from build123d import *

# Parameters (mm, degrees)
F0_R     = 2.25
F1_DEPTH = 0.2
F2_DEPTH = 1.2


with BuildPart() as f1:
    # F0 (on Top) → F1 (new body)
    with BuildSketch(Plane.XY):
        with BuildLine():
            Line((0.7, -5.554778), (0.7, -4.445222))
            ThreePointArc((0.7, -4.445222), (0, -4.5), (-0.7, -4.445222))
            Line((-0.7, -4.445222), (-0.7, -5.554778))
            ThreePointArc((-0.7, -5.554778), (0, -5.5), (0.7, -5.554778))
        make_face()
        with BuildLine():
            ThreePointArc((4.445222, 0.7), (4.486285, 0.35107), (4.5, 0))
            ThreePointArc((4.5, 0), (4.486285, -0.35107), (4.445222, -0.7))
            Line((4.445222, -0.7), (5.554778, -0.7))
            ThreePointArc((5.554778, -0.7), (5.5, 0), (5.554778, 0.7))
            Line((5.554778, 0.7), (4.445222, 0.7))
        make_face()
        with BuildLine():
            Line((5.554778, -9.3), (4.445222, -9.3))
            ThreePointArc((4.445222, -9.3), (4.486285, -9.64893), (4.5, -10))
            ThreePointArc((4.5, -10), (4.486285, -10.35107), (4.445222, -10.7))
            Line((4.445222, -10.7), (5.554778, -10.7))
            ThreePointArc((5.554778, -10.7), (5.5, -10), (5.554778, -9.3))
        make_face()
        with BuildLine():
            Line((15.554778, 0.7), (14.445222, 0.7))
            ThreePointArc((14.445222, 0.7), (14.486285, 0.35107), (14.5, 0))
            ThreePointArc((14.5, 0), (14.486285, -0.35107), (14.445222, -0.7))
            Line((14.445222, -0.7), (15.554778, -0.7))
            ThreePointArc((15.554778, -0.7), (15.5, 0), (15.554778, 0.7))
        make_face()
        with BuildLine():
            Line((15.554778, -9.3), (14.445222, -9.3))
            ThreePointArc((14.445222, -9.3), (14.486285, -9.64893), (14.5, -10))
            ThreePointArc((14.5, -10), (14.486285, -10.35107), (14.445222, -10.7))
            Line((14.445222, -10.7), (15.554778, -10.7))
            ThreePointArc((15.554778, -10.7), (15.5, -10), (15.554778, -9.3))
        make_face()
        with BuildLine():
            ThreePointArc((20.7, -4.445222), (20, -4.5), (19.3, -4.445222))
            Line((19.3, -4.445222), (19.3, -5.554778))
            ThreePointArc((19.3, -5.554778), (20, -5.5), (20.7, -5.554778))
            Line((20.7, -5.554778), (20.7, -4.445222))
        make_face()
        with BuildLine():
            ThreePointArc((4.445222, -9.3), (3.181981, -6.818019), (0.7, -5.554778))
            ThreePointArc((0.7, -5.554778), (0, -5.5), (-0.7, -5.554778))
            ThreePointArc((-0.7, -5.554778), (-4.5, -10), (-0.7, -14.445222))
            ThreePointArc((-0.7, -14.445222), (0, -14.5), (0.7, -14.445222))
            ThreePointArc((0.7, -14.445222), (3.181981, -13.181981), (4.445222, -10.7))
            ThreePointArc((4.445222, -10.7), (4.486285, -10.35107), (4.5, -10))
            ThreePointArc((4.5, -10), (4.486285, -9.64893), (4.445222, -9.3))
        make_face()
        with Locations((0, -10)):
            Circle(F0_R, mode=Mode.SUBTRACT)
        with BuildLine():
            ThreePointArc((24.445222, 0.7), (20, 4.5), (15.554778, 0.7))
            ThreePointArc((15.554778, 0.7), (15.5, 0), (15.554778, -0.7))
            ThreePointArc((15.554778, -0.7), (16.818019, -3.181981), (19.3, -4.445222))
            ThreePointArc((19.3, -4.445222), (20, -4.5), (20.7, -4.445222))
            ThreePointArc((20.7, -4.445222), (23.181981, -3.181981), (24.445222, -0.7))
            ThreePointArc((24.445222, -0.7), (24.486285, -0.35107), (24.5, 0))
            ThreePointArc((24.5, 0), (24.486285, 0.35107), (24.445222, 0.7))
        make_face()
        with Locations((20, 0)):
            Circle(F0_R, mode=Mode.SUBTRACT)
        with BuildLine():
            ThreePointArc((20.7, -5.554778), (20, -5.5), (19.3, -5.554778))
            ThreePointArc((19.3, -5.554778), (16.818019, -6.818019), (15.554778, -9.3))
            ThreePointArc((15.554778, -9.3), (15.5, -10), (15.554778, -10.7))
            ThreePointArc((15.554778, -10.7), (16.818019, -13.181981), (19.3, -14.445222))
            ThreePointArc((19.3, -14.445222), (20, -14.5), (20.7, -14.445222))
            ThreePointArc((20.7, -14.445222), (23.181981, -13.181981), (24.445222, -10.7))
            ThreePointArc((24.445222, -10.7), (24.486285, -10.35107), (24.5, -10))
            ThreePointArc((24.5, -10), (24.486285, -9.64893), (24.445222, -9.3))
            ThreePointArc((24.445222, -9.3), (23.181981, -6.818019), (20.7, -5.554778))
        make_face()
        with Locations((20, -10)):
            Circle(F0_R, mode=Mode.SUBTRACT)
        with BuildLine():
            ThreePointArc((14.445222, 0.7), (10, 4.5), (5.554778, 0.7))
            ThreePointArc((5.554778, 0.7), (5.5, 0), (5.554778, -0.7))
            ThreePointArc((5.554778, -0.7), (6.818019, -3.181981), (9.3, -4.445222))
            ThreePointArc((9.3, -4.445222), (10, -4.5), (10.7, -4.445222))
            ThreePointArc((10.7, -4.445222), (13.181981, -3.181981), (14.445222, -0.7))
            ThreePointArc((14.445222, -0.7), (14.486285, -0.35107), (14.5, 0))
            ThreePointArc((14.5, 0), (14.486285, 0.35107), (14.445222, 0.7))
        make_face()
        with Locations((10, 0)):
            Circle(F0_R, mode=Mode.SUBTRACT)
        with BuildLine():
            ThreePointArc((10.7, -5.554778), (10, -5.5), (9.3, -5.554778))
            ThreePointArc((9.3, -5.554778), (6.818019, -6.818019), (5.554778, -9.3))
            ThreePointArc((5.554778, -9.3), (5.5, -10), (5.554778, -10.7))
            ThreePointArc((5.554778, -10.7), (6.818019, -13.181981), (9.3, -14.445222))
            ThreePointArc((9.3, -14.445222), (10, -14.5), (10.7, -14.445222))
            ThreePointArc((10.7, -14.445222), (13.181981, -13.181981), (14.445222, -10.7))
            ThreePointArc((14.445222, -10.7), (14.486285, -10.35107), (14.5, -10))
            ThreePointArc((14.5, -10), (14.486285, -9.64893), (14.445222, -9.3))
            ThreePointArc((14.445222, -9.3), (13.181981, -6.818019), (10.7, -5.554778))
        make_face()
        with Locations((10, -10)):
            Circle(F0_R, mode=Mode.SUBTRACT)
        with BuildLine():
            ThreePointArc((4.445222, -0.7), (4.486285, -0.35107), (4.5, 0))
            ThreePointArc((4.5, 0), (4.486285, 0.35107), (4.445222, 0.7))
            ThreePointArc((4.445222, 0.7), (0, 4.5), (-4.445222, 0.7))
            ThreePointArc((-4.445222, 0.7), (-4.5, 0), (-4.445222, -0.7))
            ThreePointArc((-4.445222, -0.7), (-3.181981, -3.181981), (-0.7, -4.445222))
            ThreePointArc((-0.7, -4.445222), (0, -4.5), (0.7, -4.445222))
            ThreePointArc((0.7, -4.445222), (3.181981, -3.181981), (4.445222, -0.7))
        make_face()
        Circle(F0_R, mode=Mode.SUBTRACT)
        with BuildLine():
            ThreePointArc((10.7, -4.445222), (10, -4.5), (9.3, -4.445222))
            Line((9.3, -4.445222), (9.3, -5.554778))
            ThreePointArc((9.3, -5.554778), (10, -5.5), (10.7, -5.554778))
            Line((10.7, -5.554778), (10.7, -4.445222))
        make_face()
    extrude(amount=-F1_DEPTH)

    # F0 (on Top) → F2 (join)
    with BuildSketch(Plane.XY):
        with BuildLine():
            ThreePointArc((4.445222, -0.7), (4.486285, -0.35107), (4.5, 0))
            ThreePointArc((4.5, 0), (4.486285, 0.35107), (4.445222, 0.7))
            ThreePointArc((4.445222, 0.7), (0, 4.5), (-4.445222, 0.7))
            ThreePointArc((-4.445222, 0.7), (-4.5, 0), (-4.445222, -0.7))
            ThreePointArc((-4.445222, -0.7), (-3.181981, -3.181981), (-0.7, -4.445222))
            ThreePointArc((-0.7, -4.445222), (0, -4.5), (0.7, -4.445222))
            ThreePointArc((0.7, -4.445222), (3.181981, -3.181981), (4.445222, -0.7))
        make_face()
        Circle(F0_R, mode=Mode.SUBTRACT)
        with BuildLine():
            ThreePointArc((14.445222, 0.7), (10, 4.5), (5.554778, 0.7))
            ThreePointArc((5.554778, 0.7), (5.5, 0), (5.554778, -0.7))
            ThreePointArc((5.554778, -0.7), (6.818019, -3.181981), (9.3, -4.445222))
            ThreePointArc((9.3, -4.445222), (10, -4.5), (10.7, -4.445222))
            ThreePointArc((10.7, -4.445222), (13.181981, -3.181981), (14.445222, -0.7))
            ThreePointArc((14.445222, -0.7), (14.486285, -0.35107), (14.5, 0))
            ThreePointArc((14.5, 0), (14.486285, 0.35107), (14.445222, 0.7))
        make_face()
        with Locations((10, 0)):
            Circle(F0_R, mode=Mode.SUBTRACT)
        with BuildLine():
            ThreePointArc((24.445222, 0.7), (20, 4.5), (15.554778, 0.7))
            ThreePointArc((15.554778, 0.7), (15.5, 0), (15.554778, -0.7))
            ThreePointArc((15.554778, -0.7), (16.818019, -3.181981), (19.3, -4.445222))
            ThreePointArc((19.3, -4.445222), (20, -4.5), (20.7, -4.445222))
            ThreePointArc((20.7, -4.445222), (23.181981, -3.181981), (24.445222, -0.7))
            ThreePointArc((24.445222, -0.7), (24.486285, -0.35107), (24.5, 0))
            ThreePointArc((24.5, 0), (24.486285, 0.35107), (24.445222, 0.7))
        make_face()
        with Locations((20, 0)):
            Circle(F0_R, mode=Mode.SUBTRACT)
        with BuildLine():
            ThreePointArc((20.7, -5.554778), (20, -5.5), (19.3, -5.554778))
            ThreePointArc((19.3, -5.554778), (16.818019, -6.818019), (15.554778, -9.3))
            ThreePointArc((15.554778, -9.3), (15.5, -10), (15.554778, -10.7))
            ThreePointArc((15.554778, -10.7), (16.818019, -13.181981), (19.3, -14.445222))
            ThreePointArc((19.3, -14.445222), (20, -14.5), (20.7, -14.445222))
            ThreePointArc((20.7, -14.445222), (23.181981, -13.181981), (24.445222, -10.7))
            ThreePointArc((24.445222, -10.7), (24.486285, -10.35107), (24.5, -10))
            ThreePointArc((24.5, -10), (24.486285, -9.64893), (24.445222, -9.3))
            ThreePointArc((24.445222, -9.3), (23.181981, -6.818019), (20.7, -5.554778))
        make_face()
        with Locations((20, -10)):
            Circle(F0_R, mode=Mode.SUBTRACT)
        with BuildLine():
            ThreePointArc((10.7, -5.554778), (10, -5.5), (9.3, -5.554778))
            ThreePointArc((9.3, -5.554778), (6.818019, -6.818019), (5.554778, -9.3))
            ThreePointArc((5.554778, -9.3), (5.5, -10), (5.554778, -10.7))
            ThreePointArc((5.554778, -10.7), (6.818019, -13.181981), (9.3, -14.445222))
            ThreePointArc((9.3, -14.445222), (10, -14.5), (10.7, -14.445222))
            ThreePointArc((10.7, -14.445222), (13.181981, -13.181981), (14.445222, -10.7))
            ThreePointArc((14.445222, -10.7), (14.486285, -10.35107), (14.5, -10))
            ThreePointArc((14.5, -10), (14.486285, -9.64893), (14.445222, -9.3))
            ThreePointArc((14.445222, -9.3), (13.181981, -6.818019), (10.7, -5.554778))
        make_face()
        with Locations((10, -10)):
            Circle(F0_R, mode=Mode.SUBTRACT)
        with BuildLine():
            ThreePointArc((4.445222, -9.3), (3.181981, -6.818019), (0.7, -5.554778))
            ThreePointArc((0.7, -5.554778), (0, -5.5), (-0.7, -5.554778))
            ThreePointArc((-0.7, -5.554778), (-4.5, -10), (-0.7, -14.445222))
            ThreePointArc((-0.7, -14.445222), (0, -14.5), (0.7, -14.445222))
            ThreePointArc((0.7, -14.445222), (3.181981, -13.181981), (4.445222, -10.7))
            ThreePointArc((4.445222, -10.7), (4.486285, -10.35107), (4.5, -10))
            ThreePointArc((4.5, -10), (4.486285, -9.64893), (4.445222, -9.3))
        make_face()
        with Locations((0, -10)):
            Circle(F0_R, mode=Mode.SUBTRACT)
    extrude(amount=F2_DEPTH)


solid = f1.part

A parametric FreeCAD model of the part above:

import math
import FreeCAD as App
import Part
import Sketcher

V = App.Vector
Q = App.Units.Quantity

doc = App.newDocument("Part")
body = doc.addObject("PartDesign::Body", "Body")

# Sketch on XY plane
sketch1 = doc.addObject("Sketcher::SketchObject", "Sketch")
body.addObject(sketch1)
sketch1.AttachmentSupport = (doc.XY_Plane, [""])
sketch1.MapMode = "FlatFace"
sketch1.addGeometry([
    Part.LineSegment(V(-0.7, -4.445222, 0), V(-0.7, -5.554778, 0)),  # 0
    Part.ArcOfCircle(Part.Circle(V(0, -10, 0), V(0, 0, 1), 4.5), math.radians(98.949016), math.radians(261.050984)),  # 1
    Part.ArcOfCircle(Part.Circle(V(0, -10.000013, 0), V(0, 0, 1), 4.499987), math.radians(-98.949043), math.radians(-81.050957)),  # 2
    Part.ArcOfCircle(Part.Circle(V(0.000003, -10.000003, 0), V(0, 0, 1), 4.499996), math.radians(-81.051014), math.radians(-8.948986)),  # 3
    Part.LineSegment(V(4.445222, -10.7, 0), V(5.554778, -10.7, 0)),  # 4
    Part.ArcOfCircle(Part.Circle(V(9.999997, -10.000003, 0), V(0, 0, 1), 4.499996), math.radians(-171.051014), math.radians(-98.948986)),  # 5
    Part.ArcOfCircle(Part.Circle(V(10, -10.000013, 0), V(0, 0, 1), 4.499987), math.radians(-98.949043), math.radians(-81.050957)),  # 6
    Part.ArcOfCircle(Part.Circle(V(10.000003, -10.000003, 0), V(0, 0, 1), 4.499996), math.radians(-81.051014), math.radians(-8.948986)),  # 7
    Part.LineSegment(V(14.445222, -10.7, 0), V(15.554778, -10.7, 0)),  # 8
    Part.ArcOfCircle(Part.Circle(V(19.999997, -10.000003, 0), V(0, 0, 1), 4.499996), math.radians(-171.051014), math.radians(-98.948986)),  # 9
    Part.ArcOfCircle(Part.Circle(V(20, -10.000013, 0), V(0, 0, 1), 4.499987), math.radians(-98.949043), math.radians(-81.050957)),  # 10
    Part.ArcOfCircle(Part.Circle(V(20.000003, -10.000003, 0), V(0, 0, 1), 4.499996), math.radians(-81.051014), math.radians(-8.948986)),  # 11
    Part.ArcOfCircle(Part.Circle(V(20.000143, -10.00001, 0), V(0, 0, 1), 4.499857), math.radians(-8.949173), math.radians(0.00013)),  # 12
    Part.ArcOfCircle(Part.Circle(V(20.000143, -9.99999, 0), V(0, 0, 1), 4.499857), math.radians(-0.00013), math.radians(8.949173)),  # 13
    Part.ArcOfCircle(Part.Circle(V(20.000003, -9.999997, 0), V(0, 0, 1), 4.499996), math.radians(8.948986), math.radians(81.051014)),  # 14
    Part.LineSegment(V(20.7, -5.554778, 0), V(20.7, -4.445222, 0)),  # 15
    Part.ArcOfCircle(Part.Circle(V(20.000003, -0.000003, 0), V(0, 0, 1), 4.499996), math.radians(-81.051014), math.radians(-8.948986)),  # 16
    Part.ArcOfCircle(Part.Circle(V(20.000143, -0.00001, 0), V(0, 0, 1), 4.499857), math.radians(-8.949173), math.radians(0.00013)),  # 17
    Part.ArcOfCircle(Part.Circle(V(20.000143, 0.00001, 0), V(0, 0, 1), 4.499857), math.radians(-0.00013), math.radians(8.949173)),  # 18
    Part.ArcOfCircle(Part.Circle(V(20, 0, 0), V(0, 0, 1), 4.5), math.radians(8.949016), math.radians(171.050984)),  # 19
    Part.LineSegment(V(15.554778, 0.7, 0), V(14.445222, 0.7, 0)),  # 20
    Part.ArcOfCircle(Part.Circle(V(10, 0, 0), V(0, 0, 1), 4.5), math.radians(8.949016), math.radians(171.050984)),  # 21
    Part.LineSegment(V(5.554778, 0.7, 0), V(4.445222, 0.7, 0)),  # 22
    Part.ArcOfCircle(Part.Circle(V(0, 0, 0), V(0, 0, 1), 4.5), math.radians(8.949016), math.radians(171.050984)),  # 23
    Part.ArcOfCircle(Part.Circle(V(-0.000013, 0, 0), V(0, 0, 1), 4.499987), math.radians(171.050957), math.radians(188.949043)),  # 24
    Part.ArcOfCircle(Part.Circle(V(-0.000003, -0.000003, 0), V(0, 0, 1), 4.499996), math.radians(-171.051014), math.radians(-98.948986)),  # 25
    Part.Circle(V(0, -10, 0), V(0, 0, 1), 2.25),  # 26
    Part.Circle(V(10, -10, 0), V(0, 0, 1), 2.25),  # 27
    Part.Circle(V(20, -10, 0), V(0, 0, 1), 2.25),  # 28
    Part.LineSegment(V(0.7, -5.554778, 0), V(0.7, -4.445222, 0)),  # 29
    Part.ArcOfCircle(Part.Circle(V(0.000003, -0.000003, 0), V(0, 0, 1), 4.499996), math.radians(-81.051014), math.radians(-8.948986)),  # 30
    Part.LineSegment(V(4.445222, -0.7, 0), V(5.554778, -0.7, 0)),  # 31
    Part.ArcOfCircle(Part.Circle(V(9.999997, -0.000003, 0), V(0, 0, 1), 4.499996), math.radians(-171.051014), math.radians(-98.948986)),  # 32
    Part.LineSegment(V(9.3, -4.445222, 0), V(9.3, -5.554778, 0)),  # 33
    Part.ArcOfCircle(Part.Circle(V(9.999997, -9.999997, 0), V(0, 0, 1), 4.499996), math.radians(98.948986), math.radians(171.051014)),  # 34
    Part.LineSegment(V(5.554778, -9.3, 0), V(4.445222, -9.3, 0)),  # 35
    Part.ArcOfCircle(Part.Circle(V(0.000003, -9.999997, 0), V(0, 0, 1), 4.499996), math.radians(8.948986), math.radians(81.051014)),  # 36
    Part.ArcOfCircle(Part.Circle(V(10.000003, -9.999997, 0), V(0, 0, 1), 4.499996), math.radians(8.948986), math.radians(81.051014)),  # 37
    Part.LineSegment(V(10.7, -5.554778, 0), V(10.7, -4.445222, 0)),  # 38
    Part.ArcOfCircle(Part.Circle(V(10.000003, -0.000003, 0), V(0, 0, 1), 4.499996), math.radians(-81.051014), math.radians(-8.948986)),  # 39
    Part.LineSegment(V(14.445222, -0.7, 0), V(15.554778, -0.7, 0)),  # 40
    Part.ArcOfCircle(Part.Circle(V(19.999997, -0.000003, 0), V(0, 0, 1), 4.499996), math.radians(-171.051014), math.radians(-98.948986)),  # 41
    Part.LineSegment(V(19.3, -4.445222, 0), V(19.3, -5.554778, 0)),  # 42
    Part.ArcOfCircle(Part.Circle(V(19.999997, -9.999997, 0), V(0, 0, 1), 4.499996), math.radians(98.948986), math.radians(171.051014)),  # 43
    Part.LineSegment(V(15.554778, -9.3, 0), V(14.445222, -9.3, 0)),  # 44
    Part.Circle(V(0, 0, 0), V(0, 0, 1), 2.25),  # 45
    Part.Circle(V(10, 0, 0), V(0, 0, 1), 2.25),  # 46
    Part.Circle(V(20, 0, 0), V(0, 0, 1), 2.25),  # 47
], False)
sketch1.addConstraint([
    Sketcher.Constraint("Coincident", 0, 2, 1, 1),
    Sketcher.Constraint("Tangent", 1, 2, 2, 1),
    Sketcher.Constraint("Tangent", 2, 2, 3, 1),
    Sketcher.Constraint("Coincident", 3, 2, 4, 1),
    Sketcher.Constraint("Coincident", 4, 2, 5, 1),
    Sketcher.Constraint("Tangent", 5, 2, 6, 1),
    Sketcher.Constraint("Tangent", 6, 2, 7, 1),
    Sketcher.Constraint("Coincident", 7, 2, 8, 1),
    Sketcher.Constraint("Coincident", 8, 2, 9, 1),
    Sketcher.Constraint("Tangent", 9, 2, 10, 1),
    Sketcher.Constraint("Tangent", 10, 2, 11, 1),
    Sketcher.Constraint("Coincident", 11, 2, 12, 1),
    Sketcher.Constraint("Coincident", 12, 2, 13, 1),
    Sketcher.Constraint("Coincident", 13, 2, 14, 1),
    Sketcher.Constraint("Coincident", 14, 2, 15, 1),
    Sketcher.Constraint("Coincident", 15, 2, 16, 1),
    Sketcher.Constraint("Coincident", 16, 2, 17, 1),
    Sketcher.Constraint("Coincident", 17, 2, 18, 1),
    Sketcher.Constraint("Coincident", 18, 2, 19, 1),
    Sketcher.Constraint("Coincident", 19, 2, 20, 1),
    Sketcher.Constraint("Coincident", 20, 2, 21, 1),
    Sketcher.Constraint("Coincident", 21, 2, 22, 1),
    Sketcher.Constraint("Coincident", 22, 2, 23, 1),
    Sketcher.Constraint("Tangent", 23, 2, 24, 1),
    Sketcher.Constraint("Tangent", 24, 2, 25, 1),
    Sketcher.Constraint("Coincident", 25, 2, 0, 1),
    Sketcher.Constraint("Coincident", 29, 2, 30, 1),
    Sketcher.Constraint("Coincident", 30, 2, 31, 1),
    Sketcher.Constraint("Coincident", 31, 2, 32, 1),
    Sketcher.Constraint("Coincident", 32, 2, 33, 1),
    Sketcher.Constraint("Coincident", 33, 2, 34, 1),
    Sketcher.Constraint("Coincident", 34, 2, 35, 1),
    Sketcher.Constraint("Coincident", 35, 2, 36, 1),
    Sketcher.Constraint("Coincident", 36, 2, 29, 1),
    Sketcher.Constraint("Coincident", 37, 2, 38, 1),
    Sketcher.Constraint("Coincident", 38, 2, 39, 1),
    Sketcher.Constraint("Coincident", 39, 2, 40, 1),
    Sketcher.Constraint("Coincident", 40, 2, 41, 1),
    Sketcher.Constraint("Coincident", 41, 2, 42, 1),
    Sketcher.Constraint("Coincident", 42, 2, 43, 1),
    Sketcher.Constraint("Coincident", 43, 2, 44, 1),
    Sketcher.Constraint("Coincident", 44, 2, 37, 1),
    Sketcher.Constraint("Vertical", 0),
    Sketcher.Constraint("Horizontal", 4),
    Sketcher.Constraint("Horizontal", 8),
    Sketcher.Constraint("Vertical", 15),
    Sketcher.Constraint("Horizontal", 20),
    Sketcher.Constraint("Horizontal", 22),
    Sketcher.Constraint("Vertical", 29),
    Sketcher.Constraint("Horizontal", 31),
    Sketcher.Constraint("Vertical", 33),
    Sketcher.Constraint("Horizontal", 35),
    Sketcher.Constraint("Vertical", 38),
    Sketcher.Constraint("Horizontal", 40),
    Sketcher.Constraint("Vertical", 42),
    Sketcher.Constraint("Horizontal", 44),
    Sketcher.Constraint("Coincident", 23, 3, -1, 1),
    Sketcher.Constraint("Coincident", 25, 3, -1, 1),
    Sketcher.Constraint("Coincident", 30, 3, -1, 1),
    Sketcher.Constraint("Coincident", 45, 3, -1, 1),
    Sketcher.Constraint("Coincident", 3, 3, 1, 3),
    Sketcher.Constraint("Coincident", 7, 3, 5, 3),
    Sketcher.Constraint("Coincident", 11, 3, 9, 3),
    Sketcher.Constraint("Coincident", 14, 3, 9, 3),
    Sketcher.Constraint("Coincident", 19, 3, 16, 3),
    Sketcher.Constraint("Coincident", 26, 3, 1, 3),
    Sketcher.Constraint("Coincident", 27, 3, 5, 3),
    Sketcher.Constraint("Coincident", 28, 3, 9, 3),
    Sketcher.Constraint("Coincident", 32, 3, 21, 3),
    Sketcher.Constraint("Coincident", 34, 3, 5, 3),
    Sketcher.Constraint("Coincident", 36, 3, 1, 3),
    Sketcher.Constraint("Coincident", 37, 3, 5, 3),
    Sketcher.Constraint("Coincident", 39, 3, 21, 3),
    Sketcher.Constraint("Coincident", 41, 3, 16, 3),
    Sketcher.Constraint("Coincident", 43, 3, 9, 3),
    Sketcher.Constraint("Coincident", 46, 3, 21, 3),
    Sketcher.Constraint("Coincident", 47, 3, 16, 3),
    Sketcher.Constraint("Equal", 3, 5),
    Sketcher.Constraint("Equal", 7, 9),
    Sketcher.Constraint("Equal", 12, 13),
    Sketcher.Constraint("Equal", 11, 14),
    Sketcher.Constraint("Equal", 14, 16),
    Sketcher.Constraint("Equal", 13, 17),
    Sketcher.Constraint("Equal", 17, 18),
    Sketcher.Constraint("Equal", 1, 19),
    Sketcher.Constraint("Equal", 19, 21),
    Sketcher.Constraint("Equal", 21, 23),
    Sketcher.Constraint("Equal", 26, 27),
    Sketcher.Constraint("Equal", 27, 28),
    Sketcher.Constraint("Equal", 25, 30),
    Sketcher.Constraint("Equal", 30, 32),
    Sketcher.Constraint("Equal", 32, 34),
    Sketcher.Constraint("Equal", 34, 36),
    Sketcher.Constraint("Equal", 36, 37),
    Sketcher.Constraint("Equal", 37, 39),
    Sketcher.Constraint("Equal", 39, 41),
    Sketcher.Constraint("Equal", 41, 43),
    Sketcher.Constraint("Equal", 28, 45),
    Sketcher.Constraint("Equal", 45, 46),
    Sketcher.Constraint("Equal", 46, 47),
    Sketcher.Constraint("Symmetric", 1, 2, 2, 2, -2),
    Sketcher.Constraint("Symmetric", 16, 2, 18, 2, -1),
    Sketcher.Constraint("Symmetric", 21, 2, 31, 2, -1),
    Sketcher.Constraint("PointOnObject", 17, 2, -1),
    Sketcher.Constraint("Horizontal", 3, 3, 5, 3),
    Sketcher.Constraint("Horizontal", 7, 3, 9, 3),
    Sketcher.Constraint("Horizontal", 2, 2, 5, 2),
    Sketcher.Constraint("Horizontal", 5, 2, 6, 2),
    Sketcher.Constraint("Horizontal", 4, 2, 7, 2),
    Sketcher.Constraint("Horizontal", 6, 2, 9, 2),
    Sketcher.Constraint("Horizontal", 9, 2, 10, 2),
    Sketcher.Constraint("Horizontal", 8, 2, 11, 2),
    Sketcher.Constraint("Horizontal", 28, 3, 12, 2),
    Sketcher.Constraint("Horizontal", 0, 2, 14, 2),
    Sketcher.Constraint("Horizontal", 18, 2, 19, 2),
    Sketcher.Constraint("Horizontal", 20, 2, 21, 2),
    Sketcher.Constraint("Horizontal", 22, 2, 23, 2),
    Sketcher.Constraint("Horizontal", 16, 2, 24, 2),
    Sketcher.Constraint("Horizontal", 15, 2, 25, 2),
    Sketcher.Constraint("Horizontal", 25, 2, 29, 2),
    Sketcher.Constraint("Horizontal", 29, 2, 32, 2),
    Sketcher.Constraint("Horizontal", 14, 2, 33, 2),
    Sketcher.Constraint("Horizontal", 13, 2, 34, 2),
    Sketcher.Constraint("Horizontal", 36, 2, 37, 2),
    Sketcher.Constraint("Horizontal", 31, 2, 39, 2),
    Sketcher.Constraint("Horizontal", 38, 2, 41, 2),
    Sketcher.Constraint("Horizontal", 35, 2, 43, 2),
    Sketcher.Constraint("Vertical", 13, 3, 17, 3),
    Sketcher.Constraint("Vertical", 0, 2, 1, 2),
    Sketcher.Constraint("Vertical", 11, 2, 13, 2),
    Sketcher.Constraint("Vertical", 13, 2, 16, 2),
    Sketcher.Constraint("Equal", 4, 8),
    Sketcher.Constraint("Equal", 44, 0),
    Sketcher.Constraint("Diameter", 26, Q("4.5 mm")),
    Sketcher.Constraint("Radius", 1, Q("4.5 mm")),
    Sketcher.Constraint("DistanceY", 1, 3, -1, 1, Q("10 mm")),
    Sketcher.Constraint("DistanceX", -1, 1, 6, 3, Q("10 mm")),
    Sketcher.Constraint("DistanceX", 0, 2, -1, 1, Q("0.7 mm")),
    Sketcher.Constraint("DistanceX", -1, 1, 12, 2, Q("24.5 mm")),
    Sketcher.Constraint("Radius", 12, Q("4.499857 mm")),
])
pad1 = doc.addObject("PartDesign::Pad", "Pad")
body.addObject(pad1)
pad1.Profile = sketch1
pad1.Length = 0.2
pad1.Reversed = True

# Sketch on XY plane
sketch2 = doc.addObject("Sketcher::SketchObject", "Sketch001")
body.addObject(sketch2)
sketch2.AttachmentSupport = (doc.XY_Plane, [""])
sketch2.MapMode = "FlatFace"
sketch2.addGeometry([
    Part.ArcOfCircle(Part.Circle(V(0.000143, -0.00001, 0), V(0, 0, 1), 4.499857), math.radians(-8.949173), math.radians(0.00013)),  # 0
    Part.ArcOfCircle(Part.Circle(V(0.000143, 0.00001, 0), V(0, 0, 1), 4.499857), math.radians(-0.00013), math.radians(8.949173)),  # 1
    Part.ArcOfCircle(Part.Circle(V(0, 0, 0), V(0, 0, 1), 4.5), math.radians(8.949016), math.radians(171.050984)),  # 2
    Part.ArcOfCircle(Part.Circle(V(-0.000013, 0, 0), V(0, 0, 1), 4.499987), math.radians(171.050957), math.radians(188.949043)),  # 3
    Part.ArcOfCircle(Part.Circle(V(-0.000003, -0.000003, 0), V(0, 0, 1), 4.499996), math.radians(-171.051014), math.radians(-98.948986)),  # 4
    Part.ArcOfCircle(Part.Circle(V(0, -0.000013, 0), V(0, 0, 1), 4.499987), math.radians(-98.949043), math.radians(-81.050957)),  # 5
    Part.ArcOfCircle(Part.Circle(V(0.000003, -0.000003, 0), V(0, 0, 1), 4.499996), math.radians(-81.051014), math.radians(-8.948986)),  # 6
    Part.Circle(V(0, 0, 0), V(0, 0, 1), 2.25),  # 7
    Part.ArcOfCircle(Part.Circle(V(10, 0, 0), V(0, 0, 1), 4.5), math.radians(8.949016), math.radians(171.050984)),  # 8
    Part.ArcOfCircle(Part.Circle(V(9.999987, 0, 0), V(0, 0, 1), 4.499987), math.radians(171.050957), math.radians(188.949043)),  # 9
    Part.ArcOfCircle(Part.Circle(V(9.999997, -0.000003, 0), V(0, 0, 1), 4.499996), math.radians(-171.051014), math.radians(-98.948986)),  # 10
    Part.ArcOfCircle(Part.Circle(V(10, -0.000013, 0), V(0, 0, 1), 4.499987), math.radians(-98.949043), math.radians(-81.050957)),  # 11
    Part.ArcOfCircle(Part.Circle(V(10.000003, -0.000003, 0), V(0, 0, 1), 4.499996), math.radians(-81.051014), math.radians(-8.948986)),  # 12
    Part.ArcOfCircle(Part.Circle(V(10.000143, -0.00001, 0), V(0, 0, 1), 4.499857), math.radians(-8.949173), math.radians(0.00013)),  # 13
    Part.ArcOfCircle(Part.Circle(V(10.000143, 0.00001, 0), V(0, 0, 1), 4.499857), math.radians(-0.00013), math.radians(8.949173)),  # 14
    Part.Circle(V(10, 0, 0), V(0, 0, 1), 2.25),  # 15
    Part.ArcOfCircle(Part.Circle(V(20, 0, 0), V(0, 0, 1), 4.5), math.radians(8.949016), math.radians(171.050984)),  # 16
    Part.ArcOfCircle(Part.Circle(V(19.999987, 0, 0), V(0, 0, 1), 4.499987), math.radians(171.050957), math.radians(188.949043)),  # 17
    Part.ArcOfCircle(Part.Circle(V(19.999997, -0.000003, 0), V(0, 0, 1), 4.499996), math.radians(-171.051014), math.radians(-98.948986)),  # 18
    Part.ArcOfCircle(Part.Circle(V(20, -0.000013, 0), V(0, 0, 1), 4.499987), math.radians(-98.949043), math.radians(-81.050957)),  # 19
    Part.ArcOfCircle(Part.Circle(V(20.000003, -0.000003, 0), V(0, 0, 1), 4.499996), math.radians(-81.051014), math.radians(-8.948986)),  # 20
    Part.ArcOfCircle(Part.Circle(V(20.000143, -0.00001, 0), V(0, 0, 1), 4.499857), math.radians(-8.949173), math.radians(0.00013)),  # 21
    Part.ArcOfCircle(Part.Circle(V(20.000143, 0.00001, 0), V(0, 0, 1), 4.499857), math.radians(-0.00013), math.radians(8.949173)),  # 22
    Part.Circle(V(20, 0, 0), V(0, 0, 1), 2.25),  # 23
    Part.ArcOfCircle(Part.Circle(V(20, -9.999987, 0), V(0, 0, 1), 4.499987), math.radians(81.050957), math.radians(98.949043)),  # 24
    Part.ArcOfCircle(Part.Circle(V(19.999997, -9.999997, 0), V(0, 0, 1), 4.499996), math.radians(98.948986), math.radians(171.051014)),  # 25
    Part.ArcOfCircle(Part.Circle(V(19.999987, -10, 0), V(0, 0, 1), 4.499987), math.radians(171.050957), math.radians(188.949043)),  # 26
    Part.ArcOfCircle(Part.Circle(V(19.999997, -10.000003, 0), V(0, 0, 1), 4.499996), math.radians(-171.051014), math.radians(-98.948986)),  # 27
    Part.ArcOfCircle(Part.Circle(V(20, -10.000013, 0), V(0, 0, 1), 4.499987), math.radians(-98.949043), math.radians(-81.050957)),  # 28
    Part.ArcOfCircle(Part.Circle(V(20.000003, -10.000003, 0), V(0, 0, 1), 4.499996), math.radians(-81.051014), math.radians(-8.948986)),  # 29
    Part.ArcOfCircle(Part.Circle(V(20.000143, -10.00001, 0), V(0, 0, 1), 4.499857), math.radians(-8.949173), math.radians(0.00013)),  # 30
    Part.ArcOfCircle(Part.Circle(V(20.000143, -9.99999, 0), V(0, 0, 1), 4.499857), math.radians(-0.00013), math.radians(8.949173)),  # 31
    Part.ArcOfCircle(Part.Circle(V(20.000003, -9.999997, 0), V(0, 0, 1), 4.499996), math.radians(8.948986), math.radians(81.051014)),  # 32
    Part.Circle(V(20, -10, 0), V(0, 0, 1), 2.25),  # 33
    Part.ArcOfCircle(Part.Circle(V(10, -9.999987, 0), V(0, 0, 1), 4.499987), math.radians(81.050957), math.radians(98.949043)),  # 34
    Part.ArcOfCircle(Part.Circle(V(9.999997, -9.999997, 0), V(0, 0, 1), 4.499996), math.radians(98.948986), math.radians(171.051014)),  # 35
    Part.ArcOfCircle(Part.Circle(V(9.999987, -10, 0), V(0, 0, 1), 4.499987), math.radians(171.050957), math.radians(188.949043)),  # 36
    Part.ArcOfCircle(Part.Circle(V(9.999997, -10.000003, 0), V(0, 0, 1), 4.499996), math.radians(-171.051014), math.radians(-98.948986)),  # 37
    Part.ArcOfCircle(Part.Circle(V(10, -10.000013, 0), V(0, 0, 1), 4.499987), math.radians(-98.949043), math.radians(-81.050957)),  # 38
    Part.ArcOfCircle(Part.Circle(V(10.000003, -10.000003, 0), V(0, 0, 1), 4.499996), math.radians(-81.051014), math.radians(-8.948986)),  # 39
    Part.ArcOfCircle(Part.Circle(V(10.000143, -10.00001, 0), V(0, 0, 1), 4.499857), math.radians(-8.949173), math.radians(0.00013)),  # 40
    Part.ArcOfCircle(Part.Circle(V(10.000143, -9.99999, 0), V(0, 0, 1), 4.499857), math.radians(-0.00013), math.radians(8.949173)),  # 41
    Part.ArcOfCircle(Part.Circle(V(10.000003, -9.999997, 0), V(0, 0, 1), 4.499996), math.radians(8.948986), math.radians(81.051014)),  # 42
    Part.Circle(V(10, -10, 0), V(0, 0, 1), 2.25),  # 43
    Part.ArcOfCircle(Part.Circle(V(0.000003, -9.999997, 0), V(0, 0, 1), 4.499996), math.radians(8.948986), math.radians(81.051014)),  # 44
    Part.ArcOfCircle(Part.Circle(V(0, -9.999987, 0), V(0, 0, 1), 4.499987), math.radians(81.050957), math.radians(98.949043)),  # 45
    Part.ArcOfCircle(Part.Circle(V(0, -10, 0), V(0, 0, 1), 4.5), math.radians(98.949016), math.radians(261.050984)),  # 46
    Part.ArcOfCircle(Part.Circle(V(0, -10.000013, 0), V(0, 0, 1), 4.499987), math.radians(-98.949043), math.radians(-81.050957)),  # 47
    Part.ArcOfCircle(Part.Circle(V(0.000003, -10.000003, 0), V(0, 0, 1), 4.499996), math.radians(-81.051014), math.radians(-8.948986)),  # 48
    Part.ArcOfCircle(Part.Circle(V(0.000143, -10.00001, 0), V(0, 0, 1), 4.499857), math.radians(-8.949173), math.radians(0.00013)),  # 49
    Part.ArcOfCircle(Part.Circle(V(0.000143, -9.99999, 0), V(0, 0, 1), 4.499857), math.radians(-0.00013), math.radians(8.949173)),  # 50
    Part.Circle(V(0, -10, 0), V(0, 0, 1), 2.25),  # 51
], False)
sketch2.addConstraint([
    Sketcher.Constraint("Coincident", 0, 2, 1, 1),
    Sketcher.Constraint("Coincident", 1, 2, 2, 1),
    Sketcher.Constraint("Tangent", 2, 2, 3, 1),
    Sketcher.Constraint("Tangent", 3, 2, 4, 1),
    Sketcher.Constraint("Tangent", 4, 2, 5, 1),
    Sketcher.Constraint("Tangent", 5, 2, 6, 1),
    Sketcher.Constraint("Coincident", 6, 2, 0, 1),
    Sketcher.Constraint("Tangent", 8, 2, 9, 1),
    Sketcher.Constraint("Tangent", 9, 2, 10, 1),
    Sketcher.Constraint("Tangent", 10, 2, 11, 1),
    Sketcher.Constraint("Tangent", 11, 2, 12, 1),
    Sketcher.Constraint("Coincident", 12, 2, 13, 1),
    Sketcher.Constraint("Coincident", 13, 2, 14, 1),
    Sketcher.Constraint("Coincident", 14, 2, 8, 1),
    Sketcher.Constraint("Tangent", 16, 2, 17, 1),
    Sketcher.Constraint("Tangent", 17, 2, 18, 1),
    Sketcher.Constraint("Tangent", 18, 2, 19, 1),
    Sketcher.Constraint("Tangent", 19, 2, 20, 1),
    Sketcher.Constraint("Coincident", 20, 2, 21, 1),
    Sketcher.Constraint("Coincident", 21, 2, 22, 1),
    Sketcher.Constraint("Coincident", 22, 2, 16, 1),
    Sketcher.Constraint("Tangent", 24, 2, 25, 1),
    Sketcher.Constraint("Tangent", 25, 2, 26, 1),
    Sketcher.Constraint("Tangent", 26, 2, 27, 1),
    Sketcher.Constraint("Tangent", 27, 2, 28, 1),
    Sketcher.Constraint("Tangent", 28, 2, 29, 1),
    Sketcher.Constraint("Coincident", 29, 2, 30, 1),
    Sketcher.Constraint("Coincident", 30, 2, 31, 1),
    Sketcher.Constraint("Coincident", 31, 2, 32, 1),
    Sketcher.Constraint("Tangent", 32, 2, 24, 1),
    Sketcher.Constraint("Tangent", 34, 2, 35, 1),
    Sketcher.Constraint("Tangent", 35, 2, 36, 1),
    Sketcher.Constraint("Tangent", 36, 2, 37, 1),
    Sketcher.Constraint("Tangent", 37, 2, 38, 1),
    Sketcher.Constraint("Tangent", 38, 2, 39, 1),
    Sketcher.Constraint("Coincident", 39, 2, 40, 1),
    Sketcher.Constraint("Coincident", 40, 2, 41, 1),
    Sketcher.Constraint("Coincident", 41, 2, 42, 1),
    Sketcher.Constraint("Tangent", 42, 2, 34, 1),
    Sketcher.Constraint("Tangent", 44, 2, 45, 1),
    Sketcher.Constraint("Tangent", 45, 2, 46, 1),
    Sketcher.Constraint("Tangent", 46, 2, 47, 1),
    Sketcher.Constraint("Tangent", 47, 2, 48, 1),
    Sketcher.Constraint("Coincident", 48, 2, 49, 1),
    Sketcher.Constraint("Coincident", 49, 2, 50, 1),
    Sketcher.Constraint("Coincident", 50, 2, 44, 1),
    Sketcher.Constraint("Coincident", 2, 3, -1, 1),
    Sketcher.Constraint("Coincident", 4, 3, -1, 1),
    Sketcher.Constraint("Coincident", 6, 3, -1, 1),
    Sketcher.Constraint("Coincident", 7, 3, -1, 1),
    Sketcher.Constraint("Coincident", 10, 3, 8, 3),
    Sketcher.Constraint("Coincident", 12, 3, 8, 3),
    Sketcher.Constraint("Coincident", 15, 3, 8, 3),
    Sketcher.Constraint("Coincident", 18, 3, 16, 3),
    Sketcher.Constraint("Coincident", 20, 3, 16, 3),
    Sketcher.Constraint("Coincident", 23, 3, 16, 3),
    Sketcher.Constraint("Coincident", 27, 3, 25, 3),
    Sketcher.Constraint("Coincident", 29, 3, 25, 3),
    Sketcher.Constraint("Coincident", 33, 3, 25, 3),
    Sketcher.Constraint("Coincident", 37, 3, 35, 3),
    Sketcher.Constraint("Coincident", 39, 3, 35, 3),
    Sketcher.Constraint("Coincident", 43, 3, 35, 3),
    Sketcher.Constraint("Coincident", 46, 3, 44, 3),
    Sketcher.Constraint("Coincident", 48, 3, 44, 3),
    Sketcher.Constraint("Coincident", 51, 3, 44, 3),
    Sketcher.Constraint("Equal", 0, 1),
    Sketcher.Constraint("Equal", 2, 8),
    Sketcher.Constraint("Equal", 1, 13),
    Sketcher.Constraint("Equal", 13, 14),
    Sketcher.Constraint("Equal", 7, 15),
    Sketcher.Constraint("Equal", 8, 16),
    Sketcher.Constraint("Equal", 14, 21),
    Sketcher.Constraint("Equal", 21, 22),
    Sketcher.Constraint("Equal", 15, 23),
    Sketcher.Constraint("Equal", 19, 24),
    Sketcher.Constraint("Equal", 20, 25),
    Sketcher.Constraint("Equal", 22, 30),
    Sketcher.Constraint("Equal", 30, 31),
    Sketcher.Constraint("Equal", 29, 32),
    Sketcher.Constraint("Equal", 23, 33),
    Sketcher.Constraint("Equal", 28, 34),
    Sketcher.Constraint("Equal", 32, 35),
    Sketcher.Constraint("Equal", 31, 40),
    Sketcher.Constraint("Equal", 40, 41),
    Sketcher.Constraint("Equal", 39, 42),
    Sketcher.Constraint("Equal", 33, 43),
    Sketcher.Constraint("Equal", 42, 44),
    Sketcher.Constraint("Equal", 41, 49),
    Sketcher.Constraint("Equal", 49, 50),
    Sketcher.Constraint("Equal", 43, 51),
    Sketcher.Constraint("Symmetric", 44, 2, 45, 2, -2),
    Sketcher.Constraint("Symmetric", 8, 2, 9, 2, -1),
    Sketcher.Constraint("Symmetric", 16, 2, 17, 2, -1),
    Sketcher.Constraint("PointOnObject", 0, 2, -1),
    Sketcher.Constraint("PointOnObject", 13, 2, -1),
    Sketcher.Constraint("PointOnObject", 21, 2, -1),
    Sketcher.Constraint("Horizontal", 0, 3, 13, 3),
    Sketcher.Constraint("Horizontal", 13, 3, 21, 3),
    Sketcher.Constraint("Horizontal", 24, 3, 34, 3),
    Sketcher.Constraint("Horizontal", 30, 3, 40, 3),
    Sketcher.Constraint("Horizontal", 42, 3, 44, 3),
    Sketcher.Constraint("Horizontal", 40, 3, 49, 3),
    Sketcher.Constraint("Horizontal", 1, 2, 2, 2),
    Sketcher.Constraint("Horizontal", 4, 2, 5, 2),
    Sketcher.Constraint("Horizontal", 3, 2, 6, 2),
    Sketcher.Constraint("Horizontal", 2, 2, 8, 2),
    Sketcher.Constraint("Horizontal", 6, 2, 9, 2),
    Sketcher.Constraint("Horizontal", 5, 2, 10, 2),
    Sketcher.Constraint("Horizontal", 10, 2, 11, 2),
    Sketcher.Constraint("Horizontal", 9, 2, 12, 2),
    Sketcher.Constraint("Horizontal", 8, 2, 14, 2),
    Sketcher.Constraint("Horizontal", 14, 2, 16, 2),
    Sketcher.Constraint("Horizontal", 11, 2, 18, 2),
    Sketcher.Constraint("Horizontal", 18, 2, 19, 2),
    Sketcher.Constraint("Horizontal", 17, 2, 20, 2),
    Sketcher.Constraint("Horizontal", 16, 2, 22, 2),
    Sketcher.Constraint("Horizontal", 27, 2, 28, 2),
    Sketcher.Constraint("Horizontal", 26, 2, 29, 2),
    Sketcher.Constraint("Horizontal", 51, 3, 30, 2),
    Sketcher.Constraint("Horizontal", 25, 2, 31, 2),
    Sketcher.Constraint("Horizontal", 24, 2, 32, 2),
    Sketcher.Constraint("Horizontal", 32, 2, 34, 2),
    Sketcher.Constraint("Horizontal", 31, 2, 35, 2),
    Sketcher.Constraint("Horizontal", 29, 2, 36, 2),
    Sketcher.Constraint("Horizontal", 28, 2, 37, 2),
    Sketcher.Constraint("Horizontal", 37, 2, 38, 2),
    Sketcher.Constraint("Horizontal", 36, 2, 39, 2),
    Sketcher.Constraint("Horizontal", 30, 2, 40, 2),
    Sketcher.Constraint("Horizontal", 35, 2, 41, 2),
    Sketcher.Constraint("Horizontal", 34, 2, 42, 2),
    Sketcher.Constraint("Horizontal", 42, 2, 44, 2),
    Sketcher.Constraint("Horizontal", 38, 2, 46, 2),
    Sketcher.Constraint("Horizontal", 46, 2, 47, 2),
    Sketcher.Constraint("Horizontal", 39, 2, 48, 2),
    Sketcher.Constraint("Horizontal", 40, 2, 49, 2),
    Sketcher.Constraint("Horizontal", 41, 2, 50, 2),
    Sketcher.Constraint("Vertical", 23, 3, 24, 3),
    Sketcher.Constraint("Vertical", 22, 3, 30, 3),
    Sketcher.Constraint("Vertical", 15, 3, 34, 3),
    Sketcher.Constraint("Vertical", 18, 2, 24, 2),
    Sketcher.Constraint("Vertical", 17, 2, 25, 2),
    Sketcher.Constraint("Vertical", 25, 2, 26, 2),
    Sketcher.Constraint("Vertical", 24, 2, 27, 2),
    Sketcher.Constraint("Diameter", 7, Q("4.5 mm")),
    Sketcher.Constraint("Radius", 2, Q("4.5 mm")),
    Sketcher.Constraint("DistanceX", -1, 1, 8, 3, Q("10 mm")),
    Sketcher.Constraint("DistanceX", -1, 1, 16, 3, Q("20 mm")),
    Sketcher.Constraint("DistanceY", 26, 3, -1, 1, Q("10 mm")),
    Sketcher.Constraint("DistanceX", -1, 1, 0, 2, Q("4.5 mm")),
    Sketcher.Constraint("DistanceY", -1, 1, 1, 2, Q("0.7 mm")),
    Sketcher.Constraint("DistanceX", 4, 2, -1, 1, Q("0.7 mm")),
    Sketcher.Constraint("Radius", 0, Q("4.499857 mm")),
])
pad2 = doc.addObject("PartDesign::Pad", "Pad001")
body.addObject(pad2)
pad2.Profile = sketch2
pad2.Length = 1.2

doc.recompute()
